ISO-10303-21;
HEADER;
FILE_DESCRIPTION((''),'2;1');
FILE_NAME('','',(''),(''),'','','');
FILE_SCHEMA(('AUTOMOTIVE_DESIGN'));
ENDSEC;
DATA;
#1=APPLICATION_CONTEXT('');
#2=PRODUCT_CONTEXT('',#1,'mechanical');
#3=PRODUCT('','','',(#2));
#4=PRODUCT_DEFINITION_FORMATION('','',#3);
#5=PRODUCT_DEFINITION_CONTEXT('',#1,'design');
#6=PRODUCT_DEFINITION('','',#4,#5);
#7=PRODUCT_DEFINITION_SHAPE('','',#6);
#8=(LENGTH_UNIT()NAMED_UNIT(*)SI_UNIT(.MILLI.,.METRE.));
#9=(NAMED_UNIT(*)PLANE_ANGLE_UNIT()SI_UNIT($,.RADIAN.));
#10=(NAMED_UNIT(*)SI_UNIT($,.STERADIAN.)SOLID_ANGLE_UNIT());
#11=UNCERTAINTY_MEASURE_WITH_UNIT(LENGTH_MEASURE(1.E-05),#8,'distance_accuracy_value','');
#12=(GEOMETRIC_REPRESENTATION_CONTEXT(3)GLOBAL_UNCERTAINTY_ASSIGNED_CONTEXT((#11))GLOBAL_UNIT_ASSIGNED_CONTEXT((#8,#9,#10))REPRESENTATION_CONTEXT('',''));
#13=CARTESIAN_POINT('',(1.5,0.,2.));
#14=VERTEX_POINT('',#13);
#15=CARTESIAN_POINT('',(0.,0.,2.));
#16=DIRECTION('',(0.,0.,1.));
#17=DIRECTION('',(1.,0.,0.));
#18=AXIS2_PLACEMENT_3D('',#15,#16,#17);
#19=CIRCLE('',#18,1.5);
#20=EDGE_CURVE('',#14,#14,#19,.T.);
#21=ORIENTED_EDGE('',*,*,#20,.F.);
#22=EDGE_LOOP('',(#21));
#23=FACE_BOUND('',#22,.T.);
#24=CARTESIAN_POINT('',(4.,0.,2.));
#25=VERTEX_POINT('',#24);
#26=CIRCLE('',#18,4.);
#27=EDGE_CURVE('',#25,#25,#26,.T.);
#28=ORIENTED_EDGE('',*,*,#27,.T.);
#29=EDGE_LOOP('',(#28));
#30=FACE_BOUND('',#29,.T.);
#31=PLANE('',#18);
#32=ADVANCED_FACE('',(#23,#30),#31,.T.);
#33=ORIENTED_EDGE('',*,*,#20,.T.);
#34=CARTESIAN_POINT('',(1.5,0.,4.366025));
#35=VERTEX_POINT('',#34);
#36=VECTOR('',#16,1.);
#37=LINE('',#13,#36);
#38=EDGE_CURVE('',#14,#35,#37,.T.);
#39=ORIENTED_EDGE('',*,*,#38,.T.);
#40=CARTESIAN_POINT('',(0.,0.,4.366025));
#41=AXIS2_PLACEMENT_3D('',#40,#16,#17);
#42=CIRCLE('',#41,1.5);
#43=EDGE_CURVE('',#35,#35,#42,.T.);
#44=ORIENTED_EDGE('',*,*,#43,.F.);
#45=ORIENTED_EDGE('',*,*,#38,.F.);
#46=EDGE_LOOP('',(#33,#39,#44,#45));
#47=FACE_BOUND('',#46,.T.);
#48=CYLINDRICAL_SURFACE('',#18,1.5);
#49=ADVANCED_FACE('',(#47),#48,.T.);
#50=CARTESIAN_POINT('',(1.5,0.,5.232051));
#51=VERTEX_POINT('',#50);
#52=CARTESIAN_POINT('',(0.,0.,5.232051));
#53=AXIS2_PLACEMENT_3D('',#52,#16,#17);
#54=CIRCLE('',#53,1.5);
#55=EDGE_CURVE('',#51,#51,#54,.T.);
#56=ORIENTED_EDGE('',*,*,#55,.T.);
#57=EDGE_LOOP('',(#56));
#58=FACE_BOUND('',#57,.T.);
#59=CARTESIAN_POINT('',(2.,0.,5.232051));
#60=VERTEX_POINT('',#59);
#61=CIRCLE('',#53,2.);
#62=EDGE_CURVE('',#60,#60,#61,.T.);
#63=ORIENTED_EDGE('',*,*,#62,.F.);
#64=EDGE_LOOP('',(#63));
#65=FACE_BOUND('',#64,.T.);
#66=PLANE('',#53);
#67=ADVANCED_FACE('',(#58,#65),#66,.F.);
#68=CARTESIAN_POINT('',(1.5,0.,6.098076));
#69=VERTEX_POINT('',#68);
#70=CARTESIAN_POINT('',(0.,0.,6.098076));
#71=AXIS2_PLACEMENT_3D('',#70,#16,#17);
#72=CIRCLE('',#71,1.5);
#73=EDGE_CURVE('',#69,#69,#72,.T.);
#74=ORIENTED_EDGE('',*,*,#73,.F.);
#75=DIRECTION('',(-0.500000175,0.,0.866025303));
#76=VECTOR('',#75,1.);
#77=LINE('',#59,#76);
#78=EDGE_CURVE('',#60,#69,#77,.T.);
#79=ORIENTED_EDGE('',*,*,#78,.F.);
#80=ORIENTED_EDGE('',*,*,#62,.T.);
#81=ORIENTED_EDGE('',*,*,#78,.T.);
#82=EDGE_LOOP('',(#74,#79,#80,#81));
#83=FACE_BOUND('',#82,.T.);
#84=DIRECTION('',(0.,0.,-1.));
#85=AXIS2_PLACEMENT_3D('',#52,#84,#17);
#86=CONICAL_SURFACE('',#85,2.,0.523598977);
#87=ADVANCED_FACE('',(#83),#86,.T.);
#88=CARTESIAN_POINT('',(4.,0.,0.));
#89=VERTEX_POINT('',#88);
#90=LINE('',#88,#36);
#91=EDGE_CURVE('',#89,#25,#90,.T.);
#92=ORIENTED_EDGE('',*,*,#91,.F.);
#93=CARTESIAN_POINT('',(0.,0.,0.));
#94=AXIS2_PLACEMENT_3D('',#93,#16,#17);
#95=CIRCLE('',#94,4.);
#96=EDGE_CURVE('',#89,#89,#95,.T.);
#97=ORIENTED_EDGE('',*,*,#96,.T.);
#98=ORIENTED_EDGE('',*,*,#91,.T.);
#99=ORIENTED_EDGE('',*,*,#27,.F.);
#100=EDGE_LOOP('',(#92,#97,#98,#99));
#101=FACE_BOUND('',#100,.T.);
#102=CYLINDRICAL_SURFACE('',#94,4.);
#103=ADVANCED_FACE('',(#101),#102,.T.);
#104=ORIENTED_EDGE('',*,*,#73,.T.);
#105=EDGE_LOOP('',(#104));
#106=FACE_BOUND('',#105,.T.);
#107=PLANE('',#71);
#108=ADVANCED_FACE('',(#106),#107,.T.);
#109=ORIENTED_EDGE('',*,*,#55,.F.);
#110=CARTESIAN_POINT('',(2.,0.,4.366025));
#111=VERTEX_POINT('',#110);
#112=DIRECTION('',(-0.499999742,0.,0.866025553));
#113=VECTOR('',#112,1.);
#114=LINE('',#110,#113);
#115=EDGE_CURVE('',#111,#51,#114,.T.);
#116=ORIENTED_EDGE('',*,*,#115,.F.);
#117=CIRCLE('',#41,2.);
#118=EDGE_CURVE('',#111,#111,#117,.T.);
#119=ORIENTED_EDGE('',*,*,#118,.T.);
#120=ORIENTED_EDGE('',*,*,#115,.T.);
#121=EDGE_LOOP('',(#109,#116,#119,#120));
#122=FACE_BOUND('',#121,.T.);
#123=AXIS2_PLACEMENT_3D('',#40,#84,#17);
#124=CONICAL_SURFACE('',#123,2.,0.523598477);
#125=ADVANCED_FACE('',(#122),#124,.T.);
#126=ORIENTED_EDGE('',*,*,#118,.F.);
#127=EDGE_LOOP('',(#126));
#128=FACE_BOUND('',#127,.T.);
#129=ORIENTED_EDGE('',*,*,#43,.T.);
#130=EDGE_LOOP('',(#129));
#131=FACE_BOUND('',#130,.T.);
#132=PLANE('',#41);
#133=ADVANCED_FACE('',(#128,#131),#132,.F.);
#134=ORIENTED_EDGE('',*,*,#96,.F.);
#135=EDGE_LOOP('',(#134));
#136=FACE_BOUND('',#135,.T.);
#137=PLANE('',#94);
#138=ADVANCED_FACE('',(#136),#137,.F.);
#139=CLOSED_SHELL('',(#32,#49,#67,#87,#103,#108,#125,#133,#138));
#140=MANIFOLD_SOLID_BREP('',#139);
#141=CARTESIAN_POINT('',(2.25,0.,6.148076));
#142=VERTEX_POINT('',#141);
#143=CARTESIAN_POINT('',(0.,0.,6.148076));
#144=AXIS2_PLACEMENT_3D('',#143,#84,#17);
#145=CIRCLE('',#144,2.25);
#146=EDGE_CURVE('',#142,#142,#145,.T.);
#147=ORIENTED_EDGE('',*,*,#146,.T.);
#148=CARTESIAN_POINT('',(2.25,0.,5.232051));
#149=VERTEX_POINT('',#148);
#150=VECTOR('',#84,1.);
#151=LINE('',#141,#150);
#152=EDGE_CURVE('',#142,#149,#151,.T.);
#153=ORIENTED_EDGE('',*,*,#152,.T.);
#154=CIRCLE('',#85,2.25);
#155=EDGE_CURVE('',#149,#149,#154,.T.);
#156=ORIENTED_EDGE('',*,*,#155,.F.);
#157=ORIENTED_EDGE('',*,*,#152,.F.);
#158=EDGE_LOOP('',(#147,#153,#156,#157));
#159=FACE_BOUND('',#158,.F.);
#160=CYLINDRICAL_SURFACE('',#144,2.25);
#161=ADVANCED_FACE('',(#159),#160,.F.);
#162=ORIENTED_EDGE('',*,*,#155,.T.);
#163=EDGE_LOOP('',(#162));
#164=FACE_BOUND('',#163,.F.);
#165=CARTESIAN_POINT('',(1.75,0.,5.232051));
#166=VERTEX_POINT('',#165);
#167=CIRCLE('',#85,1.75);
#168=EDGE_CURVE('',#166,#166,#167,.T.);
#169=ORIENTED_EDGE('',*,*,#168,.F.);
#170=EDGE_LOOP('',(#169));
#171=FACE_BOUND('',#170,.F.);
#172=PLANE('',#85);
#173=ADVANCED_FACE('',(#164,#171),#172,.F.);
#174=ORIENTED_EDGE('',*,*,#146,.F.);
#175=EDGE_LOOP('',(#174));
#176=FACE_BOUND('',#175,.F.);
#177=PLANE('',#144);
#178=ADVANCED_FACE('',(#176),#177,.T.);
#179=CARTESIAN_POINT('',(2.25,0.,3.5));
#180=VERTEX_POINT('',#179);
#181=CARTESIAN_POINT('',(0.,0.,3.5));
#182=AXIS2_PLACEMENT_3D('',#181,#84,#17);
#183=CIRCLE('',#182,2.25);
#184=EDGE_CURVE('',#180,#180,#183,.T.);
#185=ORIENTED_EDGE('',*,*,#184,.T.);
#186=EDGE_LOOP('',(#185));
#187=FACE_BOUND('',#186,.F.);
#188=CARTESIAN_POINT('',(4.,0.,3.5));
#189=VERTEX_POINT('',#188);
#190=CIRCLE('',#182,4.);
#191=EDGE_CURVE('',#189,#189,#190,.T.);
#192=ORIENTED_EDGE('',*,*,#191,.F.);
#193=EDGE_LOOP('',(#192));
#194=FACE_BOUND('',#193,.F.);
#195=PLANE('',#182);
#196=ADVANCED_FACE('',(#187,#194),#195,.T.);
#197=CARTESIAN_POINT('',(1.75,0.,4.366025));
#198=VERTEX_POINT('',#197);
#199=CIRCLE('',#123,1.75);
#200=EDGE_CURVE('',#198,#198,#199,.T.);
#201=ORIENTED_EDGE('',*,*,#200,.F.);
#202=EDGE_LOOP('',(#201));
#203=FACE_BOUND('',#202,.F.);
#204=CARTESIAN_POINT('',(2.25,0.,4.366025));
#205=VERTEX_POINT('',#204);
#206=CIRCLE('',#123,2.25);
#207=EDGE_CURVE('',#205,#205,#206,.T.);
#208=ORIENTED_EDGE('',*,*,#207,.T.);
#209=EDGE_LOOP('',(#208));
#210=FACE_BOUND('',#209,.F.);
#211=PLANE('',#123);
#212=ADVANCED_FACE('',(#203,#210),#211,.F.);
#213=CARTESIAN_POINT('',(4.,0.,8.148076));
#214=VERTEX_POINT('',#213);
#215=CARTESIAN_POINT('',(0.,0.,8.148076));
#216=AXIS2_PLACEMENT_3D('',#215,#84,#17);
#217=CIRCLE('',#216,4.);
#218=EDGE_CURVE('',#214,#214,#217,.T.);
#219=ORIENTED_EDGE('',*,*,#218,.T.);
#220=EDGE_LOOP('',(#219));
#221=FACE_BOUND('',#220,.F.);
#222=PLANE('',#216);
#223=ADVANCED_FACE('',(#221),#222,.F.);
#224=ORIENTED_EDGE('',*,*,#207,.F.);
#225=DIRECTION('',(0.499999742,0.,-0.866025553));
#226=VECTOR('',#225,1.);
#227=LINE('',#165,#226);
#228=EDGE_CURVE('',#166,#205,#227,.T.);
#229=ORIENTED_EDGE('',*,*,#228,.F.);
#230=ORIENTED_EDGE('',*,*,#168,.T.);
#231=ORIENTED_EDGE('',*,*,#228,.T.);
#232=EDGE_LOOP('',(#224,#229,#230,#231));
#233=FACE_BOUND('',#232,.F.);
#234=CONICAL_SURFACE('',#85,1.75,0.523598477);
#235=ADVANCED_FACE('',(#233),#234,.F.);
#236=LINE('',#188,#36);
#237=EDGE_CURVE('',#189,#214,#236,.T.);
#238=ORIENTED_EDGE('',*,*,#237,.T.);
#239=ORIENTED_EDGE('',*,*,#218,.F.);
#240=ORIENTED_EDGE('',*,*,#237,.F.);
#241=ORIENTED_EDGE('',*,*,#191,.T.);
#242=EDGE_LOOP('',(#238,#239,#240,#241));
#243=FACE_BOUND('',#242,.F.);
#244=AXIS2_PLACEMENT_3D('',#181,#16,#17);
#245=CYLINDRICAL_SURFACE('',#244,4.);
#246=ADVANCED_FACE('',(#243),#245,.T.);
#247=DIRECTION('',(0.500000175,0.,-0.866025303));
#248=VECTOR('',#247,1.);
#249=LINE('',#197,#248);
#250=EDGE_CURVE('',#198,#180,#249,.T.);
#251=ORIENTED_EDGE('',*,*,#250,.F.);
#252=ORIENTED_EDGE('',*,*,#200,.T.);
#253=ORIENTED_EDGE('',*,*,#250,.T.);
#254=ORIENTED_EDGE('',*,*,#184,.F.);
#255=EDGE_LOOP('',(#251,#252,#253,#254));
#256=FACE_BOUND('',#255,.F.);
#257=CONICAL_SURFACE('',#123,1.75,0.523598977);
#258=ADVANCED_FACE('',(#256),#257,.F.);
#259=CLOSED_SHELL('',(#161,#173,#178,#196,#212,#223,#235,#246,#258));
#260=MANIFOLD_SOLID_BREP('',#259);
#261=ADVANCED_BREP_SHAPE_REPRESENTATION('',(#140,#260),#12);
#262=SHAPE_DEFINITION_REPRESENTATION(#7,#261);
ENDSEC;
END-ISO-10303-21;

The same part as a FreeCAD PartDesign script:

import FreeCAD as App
import Part
import Sketcher
Q = App.Units.Quantity

doc = App.newDocument("Part")
params = doc.addObject("Spreadsheet::Sheet", "Params")
for row, (alias, value) in enumerate([
    ("sketch1_width", "4 mm"),
    ("sketch1_height", "2 mm"),
    ("sketch1_length", "1.000001 mm"),
    ("sketch1_width2", "2.5 mm"),
    ("revolution_angle", "360 deg"),
    ("sketch2_width", "4 mm"),
    ("sketch2_height", "2 mm"),
    ("sketch2_length", "1.000001 mm"),
    ("sketch2_width2", "1.75 mm"),
    ("revolution2_angle", "360 deg"),
], start=1):
    params.set(f"A{row}", alias)
    params.set(f"B{row}", "=" + value)
    params.setAlias(f"B{row}", alias)

body = doc.addObject("PartDesign::Body", "Body")

# Sketch on XZ plane
sketch1 = doc.addObject("Sketcher::SketchObject", "Sketch")
body.addObject(sketch1)
sketch1.AttachmentSupport = (doc.XZ_Plane, [""])
sketch1.MapMode = "FlatFace"
sketch1.addGeometry([
    Part.LineSegment(App.Vector(0, 0, 0), App.Vector(4, 0, 0)),  # 0
    Part.LineSegment(App.Vector(4, 0, 0), App.Vector(4, 2, 0)),  # 1
    Part.LineSegment(App.Vector(4, 2, 0), App.Vector(1.5, 2, 0)),  # 2
    Part.LineSegment(App.Vector(1.5, 2, 0), App.Vector(1.5, 4.366025, 0)),  # 3
    Part.LineSegment(App.Vector(1.5, 4.366025, 0), App.Vector(2, 4.366025, 0)),  # 4
    Part.LineSegment(App.Vector(2, 4.366025, 0), App.Vector(1.5, 5.232051, 0)),  # 5
    Part.LineSegment(App.Vector(1.5, 5.232051, 0), App.Vector(2, 5.232051, 0)),  # 6
    Part.LineSegment(App.Vector(2, 5.232051, 0), App.Vector(1.5, 6.098076, 0)),  # 7
    Part.LineSegment(App.Vector(1.5, 6.098076, 0), App.Vector(0, 6.098076, 0)),  # 8
    Part.LineSegment(App.Vector(0, 6.098076, 0), App.Vector(0, 0, 0)),  # 9
], False)
sketch1.addConstraint([
    Sketcher.Constraint("Coincident", 0, 2, 1, 1),
    Sketcher.Constraint("Coincident", 1, 2, 2, 1),
    Sketcher.Constraint("Coincident", 2, 2, 3, 1),
    Sketcher.Constraint("Coincident", 3, 2, 4, 1),
    Sketcher.Constraint("Coincident", 4, 2, 5, 1),
    Sketcher.Constraint("Coincident", 5, 2, 6, 1),
    Sketcher.Constraint("Coincident", 6, 2, 7, 1),
    Sketcher.Constraint("Coincident", 7, 2, 8, 1),
    Sketcher.Constraint("Coincident", 8, 2, 9, 1),
    Sketcher.Constraint("Coincident", 9, 2, 0, 1),
    Sketcher.Constraint("Horizontal", 0),
    Sketcher.Constraint("Vertical", 1),
    Sketcher.Constraint("Horizontal", 2),
    Sketcher.Constraint("Vertical", 3),
    Sketcher.Constraint("Horizontal", 4),
    Sketcher.Constraint("Horizontal", 6),
    Sketcher.Constraint("Horizontal", 8),
    Sketcher.Constraint("Vertical", 9),
    Sketcher.Constraint("Coincident", 9, 2, -1, 1),
    Sketcher.Constraint("Parallel", 5, 7),
    Sketcher.Constraint("Vertical", 3, 2, 5, 2),
    Sketcher.Constraint("Vertical", 4, 2, 6, 2),
    Sketcher.Constraint("Vertical", 5, 2, 7, 2),
    Sketcher.Constraint("DistanceX", 0, 1, 0, 2, 4.0),
    Sketcher.Constraint("DistanceY", 1, 1, 1, 2, 2.0),
    Sketcher.Constraint("Angle", 5, Q("119.999983 deg")),
    Sketcher.Constraint("Distance", 5, 1.000001),
    Sketcher.Constraint("DistanceX", 2, 2, 2, 1, 2.5),
    Sketcher.Constraint("DistanceY", 3, 1, 3, 2, 2.366025),
])
sketch1.setExpression("Constraints[23]", "Params.sketch1_width")
sketch1.setExpression("Constraints[24]", "Params.sketch1_height")
sketch1.setExpression("Constraints[26]", "Params.sketch1_length")
sketch1.setExpression("Constraints[27]", "Params.sketch1_width2")
revolution = doc.addObject("PartDesign::Revolution", "Revolution")
body.addObject(revolution)
revolution.Profile = sketch1
revolution.ReferenceAxis = (sketch1, ["V_Axis"])
revolution.setExpression("Angle", "Params.revolution_angle")
body2 = doc.addObject("PartDesign::Body", "Body001")

# Sketch on XZ plane
sketch2 = doc.addObject("Sketcher::SketchObject", "Sketch001")
body2.addObject(sketch2)
sketch2.AttachmentSupport = (doc.getObject("XZ_Plane001"), [""])
sketch2.MapMode = "FlatFace"
sketch2.addGeometry([
    Part.LineSegment(App.Vector(2.25, 5.232051, 0), App.Vector(1.75, 5.232051, 0)),  # 0
    Part.LineSegment(App.Vector(1.75, 5.232051, 0), App.Vector(2.25, 4.366025, 0)),  # 1
    Part.LineSegment(App.Vector(2.25, 4.366025, 0), App.Vector(1.75, 4.366025, 0)),  # 2
    Part.LineSegment(App.Vector(1.75, 4.366025, 0), App.Vector(2.25, 3.5, 0)),  # 3
    Part.LineSegment(App.Vector(2.25, 3.5, 0), App.Vector(4, 3.5, 0)),  # 4
    Part.LineSegment(App.Vector(4, 3.5, 0), App.Vector(4, 8.148076, 0)),  # 5
    Part.LineSegment(App.Vector(4, 8.148076, 0), App.Vector(0, 8.148076, 0)),  # 6
    Part.LineSegment(App.Vector(0, 8.148076, 0), App.Vector(0, 6.148076, 0)),  # 7
    Part.LineSegment(App.Vector(0, 6.148076, 0), App.Vector(2.25, 6.148076, 0)),  # 8
    Part.LineSegment(App.Vector(2.25, 6.148076, 0), App.Vector(2.25, 5.232051, 0)),  # 9
], False)
sketch2.addConstraint([
    Sketcher.Constraint("Coincident", 0, 2, 1, 1),
    Sketcher.Constraint("Coincident", 1, 2, 2, 1),
    Sketcher.Constraint("Coincident", 2, 2, 3, 1),
    Sketcher.Constraint("Coincident", 3, 2, 4, 1),
    Sketcher.Constraint("Coincident", 4, 2, 5, 1),
    Sketcher.Constraint("Coincident", 5, 2, 6, 1),
    Sketcher.Constraint("Coincident", 6, 2, 7, 1),
    Sketcher.Constraint("Coincident", 7, 2, 8, 1),
    Sketcher.Constraint("Coincident", 8, 2, 9, 1),
    Sketcher.Constraint("Coincident", 9, 2, 0, 1),
    Sketcher.Constraint("Horizontal", 0),
    Sketcher.Constraint("Horizontal", 2),
    Sketcher.Constraint("Horizontal", 4),
    Sketcher.Constraint("Vertical", 5),
    Sketcher.Constraint("Horizontal", 6),
    Sketcher.Constraint("Vertical", 7),
    Sketcher.Constraint("Horizontal", 8),
    Sketcher.Constraint("Vertical", 9),
    Sketcher.Constraint("PointOnObject", 6, 2, -2),
    Sketcher.Constraint("Parallel", 1, 3),
    Sketcher.Constraint("Vertical", 0, 2, 2, 2),
    Sketcher.Constraint("Vertical", 1, 2, 3, 2),
    Sketcher.Constraint("Vertical", 3, 2, 8, 2),
    Sketcher.Constraint("DistanceX", 6, 2, 6, 1, 4.0),
    Sketcher.Constraint("DistanceY", 7, 2, 7, 1, 2.0),
    Sketcher.Constraint("Angle", 1, Q("-60.000017 deg")),
    Sketcher.Constraint("Distance", 1, 1.000001),
    Sketcher.Constraint("DistanceX", 4, 1, 4, 2, 1.75),
    Sketcher.Constraint("DistanceY", -1, 1, 3, 2, 3.5),
    Sketcher.Constraint("DistanceY", 5, 1, 5, 2, 4.648076),
])
sketch2.setExpression("Constraints[23]", "Params.sketch2_width")
sketch2.setExpression("Constraints[24]", "Params.sketch2_height")
sketch2.setExpression("Constraints[26]", "Params.sketch2_length")
sketch2.setExpression("Constraints[27]", "Params.sketch2_width2")
revolution2 = doc.addObject("PartDesign::Revolution", "Revolution001")
body2.addObject(revolution2)
revolution2.Profile = sketch2
revolution2.ReferenceAxis = (sketch2, ["V_Axis"])
revolution2.setExpression("Angle", "Params.revolution2_angle")

doc.recompute()
